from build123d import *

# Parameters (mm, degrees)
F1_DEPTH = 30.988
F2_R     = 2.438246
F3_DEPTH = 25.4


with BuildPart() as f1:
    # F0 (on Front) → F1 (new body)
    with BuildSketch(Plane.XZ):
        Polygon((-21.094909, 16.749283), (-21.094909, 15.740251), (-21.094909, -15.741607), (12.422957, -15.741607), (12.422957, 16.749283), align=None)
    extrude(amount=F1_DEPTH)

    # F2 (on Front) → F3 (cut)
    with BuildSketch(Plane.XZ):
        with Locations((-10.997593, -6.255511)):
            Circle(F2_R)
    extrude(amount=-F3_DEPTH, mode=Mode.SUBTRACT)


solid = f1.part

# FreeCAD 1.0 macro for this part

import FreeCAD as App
import Part
import Sketcher
from FreeCAD import Vector
Q = App.Units.Quantity

doc = App.newDocument("Part")
body = doc.addObject("PartDesign::Body", "Body")

sketch1 = body.newObject("Sketcher::SketchObject", "Sketch")
sketch1.AttachmentSupport = (doc.getObject("XZ_Plane"), [""])
sketch1.MapMode = "FlatFace"
sketch1.addGeometry([
    Part.LineSegment(Vector(-21, 17, 0), Vector(-21, -16, 0)),
    Part.LineSegment(Vector(-21, -16, 0), Vector(12, -16, 0)),
    Part.LineSegment(Vector(12, -16, 0), Vector(12, 17, 0)),
    Part.LineSegment(Vector(12, 17, 0), Vector(-21, 17, 0)),
], False)
sketch1.addConstraint([
    Sketcher.Constraint("Coincident", 0, 2, 1, 1),
    Sketcher.Constraint("Coincident", 1, 2, 2, 1),
    Sketcher.Constraint("Coincident", 2, 2, 3, 1),
    Sketcher.Constraint("Coincident", 3, 2, 0, 1),
    Sketcher.Constraint("Vertical", 0),
    Sketcher.Constraint("Horizontal", 1),
    Sketcher.Constraint("Vertical", 2),
    Sketcher.Constraint("Horizontal", 3),
    Sketcher.Constraint("DistanceY", 0, 2, 0, 1, Q("32.49089 mm")),
    Sketcher.Constraint("DistanceX", 1, 1, 1, 2, Q("33.517866 mm")),
    Sketcher.Constraint("DistanceX", 0, 2, -1, 1, Q("21.094909 mm")),
    Sketcher.Constraint("DistanceY", 0, 2, -1, 1, Q("15.741607 mm")),
])
pad1 = body.newObject("PartDesign::Pad", "Pad")
pad1.Profile = sketch1
pad1.Length = Q("1.22 in")

sketch2 = body.newObject("Sketcher::SketchObject", "Sketch001")
sketch2.AttachmentSupport = (doc.getObject("XZ_Plane"), [""])
sketch2.MapMode = "FlatFace"
sketch2.addGeometry(Part.Circle(Vector(-11, -6.3, 0), Vector(0, 0, 1), 2.4), False)
sketch2.addConstraint([
    Sketcher.Constraint("Diameter", 0, Q("4.876492 mm")),
    Sketcher.Constraint("DistanceY", 0, 3, -1, 1, Q("6.255511 mm")),
    Sketcher.Constraint("DistanceX", 0, 3, -1, 1, Q("10.997593 mm")),
])
pocket1 = body.newObject("PartDesign::Pocket", "Pocket")
pocket1.Profile = sketch2
pocket1.Length = Q("1 in")

doc.recompute()
